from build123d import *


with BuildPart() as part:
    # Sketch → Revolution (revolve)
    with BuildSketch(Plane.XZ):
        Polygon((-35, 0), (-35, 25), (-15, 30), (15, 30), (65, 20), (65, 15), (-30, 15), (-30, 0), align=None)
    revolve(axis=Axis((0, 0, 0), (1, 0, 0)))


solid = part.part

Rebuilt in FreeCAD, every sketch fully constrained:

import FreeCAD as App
import Part
import Sketcher
from FreeCAD import Vector
Q = App.Units.Quantity


def add_polygon(sketch, points):
    """Adds a closed chain of lines whose ends are joined by coincident constraints."""
    first, n = sketch.GeometryCount, len(points)
    for a, b in zip(points, points[1:] + points[:1]):
        sketch.addGeometry(Part.LineSegment(App.Vector(*a, 0), App.Vector(*b, 0)), False)
    for i in range(n):
        sketch.addConstraint(Sketcher.Constraint("Coincident", first + i, 2, first + (i + 1) % n, 1))

doc = App.newDocument("Part")
params = doc.addObject("Spreadsheet::Sheet", "Params")
for row, (alias, value) in enumerate([
    ("sketch1_width", "5 mm"),
    ("sketch1_width2", "95 mm"),
    ("sketch1_width3", "30 mm"),
    ("sketch1_height", "25 mm"),
    ("sketch1_height2", "15 mm"),
    ("revolution_angle", "360 deg"),
], start=1):
    params.set(f"A{row}", alias)
    params.set(f"B{row}", "=" + value)
    params.setAlias(f"B{row}", alias)

body = doc.addObject("PartDesign::Body", "Body")

# Sketch on XZ plane
sketch1 = body.newObject("Sketcher::SketchObject", "Sketch")
sketch1.AttachmentSupport = (doc.getObject("XZ_Plane"), [""])
sketch1.MapMode = "FlatFace"
add_polygon(sketch1, [(-35, 25), (-35, 0), (-30, 0), (-30, 15), (65, 15), (65, 20), (15, 30), (-15, 30)])  # lines 0-7
sketch1.addConstraint(Sketcher.Constraint("Vertical", 0))
sketch1.addConstraint(Sketcher.Constraint("Horizontal", 1))
sketch1.addConstraint(Sketcher.Constraint("Vertical", 2))
sketch1.addConstraint(Sketcher.Constraint("Horizontal", 3))
sketch1.addConstraint(Sketcher.Constraint("Vertical", 4))
sketch1.addConstraint(Sketcher.Constraint("Horizontal", 6))
sketch1.addConstraint(Sketcher.Constraint("PointOnObject", 0, 2, -1))
sketch1.addConstraint(Sketcher.Constraint("Equal", 1, 4))
sketch1.addConstraint(Sketcher.Constraint("DistanceX", 1, 1, 1, 2, Q("5 mm")))
sketch1.addConstraint(Sketcher.Constraint("DistanceX", 3, 1, 3, 2, Q("95 mm")))
sketch1.addConstraint(Sketcher.Constraint("DistanceX", 6, 2, 6, 1, Q("30 mm")))
sketch1.addConstraint(Sketcher.Constraint("DistanceY", 0, 2, 0, 1, Q("25 mm")))
sketch1.addConstraint(Sketcher.Constraint("DistanceY", 2, 1, 2, 2, Q("15 mm")))
sketch1.addConstraint(Sketcher.Constraint("DistanceX", 0, 2, -1, 1, Q("35 mm")))
sketch1.addConstraint(Sketcher.Constraint("DistanceX", -1, 1, 5, 2, Q("15 mm")))
sketch1.addConstraint(Sketcher.Constraint("DistanceY", -1, 1, 5, 2, Q("30 mm")))
sketch1.setExpression("Constraints[16]", "Params.sketch1_width")
sketch1.setExpression("Constraints[17]", "Params.sketch1_width2")
sketch1.setExpression("Constraints[18]", "Params.sketch1_width3")
sketch1.setExpression("Constraints[19]", "Params.sketch1_height")
sketch1.setExpression("Constraints[20]", "Params.sketch1_height2")
revolution = body.newObject("PartDesign::Revolution", "Revolution")
revolution.Profile = sketch1
revolution.ReferenceAxis = (sketch1, ["H_Axis"])
revolution.setExpression("Angle", "Params.revolution_angle")

doc.recompute()
